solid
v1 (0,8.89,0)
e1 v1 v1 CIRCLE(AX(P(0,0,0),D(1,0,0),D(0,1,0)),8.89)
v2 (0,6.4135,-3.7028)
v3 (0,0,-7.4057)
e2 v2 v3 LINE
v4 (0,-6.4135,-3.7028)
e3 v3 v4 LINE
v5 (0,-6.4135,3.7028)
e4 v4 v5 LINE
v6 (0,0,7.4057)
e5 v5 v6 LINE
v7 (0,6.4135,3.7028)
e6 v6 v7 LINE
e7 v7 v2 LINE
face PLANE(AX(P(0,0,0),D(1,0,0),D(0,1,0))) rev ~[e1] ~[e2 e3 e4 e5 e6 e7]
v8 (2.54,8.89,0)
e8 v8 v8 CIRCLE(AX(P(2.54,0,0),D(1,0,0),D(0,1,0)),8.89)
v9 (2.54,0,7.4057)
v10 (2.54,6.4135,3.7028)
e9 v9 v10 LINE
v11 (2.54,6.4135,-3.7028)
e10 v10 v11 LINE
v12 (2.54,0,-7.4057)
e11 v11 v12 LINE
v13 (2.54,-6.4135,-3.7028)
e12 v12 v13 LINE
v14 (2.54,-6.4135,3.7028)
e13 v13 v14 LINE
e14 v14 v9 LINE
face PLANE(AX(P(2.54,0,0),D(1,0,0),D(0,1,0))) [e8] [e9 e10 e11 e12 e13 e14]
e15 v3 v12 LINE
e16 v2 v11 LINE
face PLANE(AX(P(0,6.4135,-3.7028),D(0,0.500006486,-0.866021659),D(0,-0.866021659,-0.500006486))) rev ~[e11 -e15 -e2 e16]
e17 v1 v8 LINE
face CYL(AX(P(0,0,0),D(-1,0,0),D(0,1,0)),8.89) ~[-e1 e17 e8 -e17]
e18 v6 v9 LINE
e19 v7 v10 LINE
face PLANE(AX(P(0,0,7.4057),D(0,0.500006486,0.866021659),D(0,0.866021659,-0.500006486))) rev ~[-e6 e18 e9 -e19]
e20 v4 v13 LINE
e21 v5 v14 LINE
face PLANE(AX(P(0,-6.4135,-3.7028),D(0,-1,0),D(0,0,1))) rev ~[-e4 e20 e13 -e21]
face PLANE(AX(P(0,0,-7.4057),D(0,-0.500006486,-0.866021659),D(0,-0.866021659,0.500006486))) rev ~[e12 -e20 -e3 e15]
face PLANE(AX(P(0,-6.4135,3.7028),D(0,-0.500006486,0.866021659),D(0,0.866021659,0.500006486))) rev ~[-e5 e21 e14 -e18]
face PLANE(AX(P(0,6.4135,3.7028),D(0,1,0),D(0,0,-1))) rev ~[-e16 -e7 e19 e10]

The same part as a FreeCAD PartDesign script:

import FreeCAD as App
import Part
import Sketcher
from FreeCAD import Vector
Q = App.Units.Quantity


def add_polygon(sketch, points):
    """Adds a closed chain of lines whose ends are joined by coincident constraints."""
    first, n = sketch.GeometryCount, len(points)
    for a, b in zip(points, points[1:] + points[:1]):
        sketch.addGeometry(Part.LineSegment(App.Vector(*a, 0), App.Vector(*b, 0)), False)
    for i in range(n):
        sketch.addConstraint(Sketcher.Constraint("Coincident", first + i, 2, first + (i + 1) % n, 1))

doc = App.newDocument("Part")
params = doc.addObject("Spreadsheet::Sheet", "Params")
for row, (alias, value) in enumerate([
    ("sketch1_diameter", "0.7 in"),
    ("pad1_length", "0.1 in"),
], start=1):
    params.set(f"A{row}", alias)
    params.set(f"B{row}", "=" + value)
    params.setAlias(f"B{row}", alias)

body = doc.addObject("PartDesign::Body", "Body")

# Sketch on YZ plane
sketch1 = doc.addObject("Sketcher::SketchObject", "Sketch")
body.addObject(sketch1)
sketch1.AttachmentSupport = (doc.YZ_Plane, [""])
sketch1.MapMode = "FlatFace"
sketch1.addGeometry(Part.Circle(Vector(0, 0, 0), Vector(0, 0, 1), 9), False)  # 0
add_polygon(sketch1, [(0, -7), (-6, -4), (-6, 4), (0, 7), (6, 4), (6, -4)])  # lines 1-6
sketch1.addConstraint(Sketcher.Constraint("Vertical", 2))
sketch1.addConstraint(Sketcher.Constraint("Vertical", 5))
sketch1.addConstraint(Sketcher.Constraint("Coincident", 0, 3, -1, 1))
sketch1.addConstraint(Sketcher.Constraint("Symmetric", 1, 2, 4, 2, -1, 1))
sketch1.addConstraint(Sketcher.Constraint("Symmetric", 3, 2, 6, 2, -1, 1))
sketch1.addConstraint(Sketcher.Constraint("PointOnObject", 3, 2, -2))
sketch1.addConstraint(Sketcher.Constraint("Parallel", 3, 6))
sketch1.addConstraint(Sketcher.Constraint("Horizontal", 2, 2, 4, 2))
sketch1.addConstraint(Sketcher.Constraint("Diameter", 0, Q("0.7 in")))
sketch1.addConstraint(Sketcher.Constraint("Angle", 1, Q("149.9996 deg")))
sketch1.addConstraint(Sketcher.Constraint("DistanceX", 2, 2, 4, 2, Q("0.505 in")))
sketch1.addConstraint(Sketcher.Constraint("DistanceY", 2, 1, 2, 2, 7.4056))
sketch1.setExpression("Constraints[14]", "Params.sketch1_diameter")
pad1 = doc.addObject("PartDesign::Pad", "Pad")
body.addObject(pad1)
pad1.Profile = sketch1
pad1.setExpression("Length", "Params.pad1_length")

doc.recompute()
